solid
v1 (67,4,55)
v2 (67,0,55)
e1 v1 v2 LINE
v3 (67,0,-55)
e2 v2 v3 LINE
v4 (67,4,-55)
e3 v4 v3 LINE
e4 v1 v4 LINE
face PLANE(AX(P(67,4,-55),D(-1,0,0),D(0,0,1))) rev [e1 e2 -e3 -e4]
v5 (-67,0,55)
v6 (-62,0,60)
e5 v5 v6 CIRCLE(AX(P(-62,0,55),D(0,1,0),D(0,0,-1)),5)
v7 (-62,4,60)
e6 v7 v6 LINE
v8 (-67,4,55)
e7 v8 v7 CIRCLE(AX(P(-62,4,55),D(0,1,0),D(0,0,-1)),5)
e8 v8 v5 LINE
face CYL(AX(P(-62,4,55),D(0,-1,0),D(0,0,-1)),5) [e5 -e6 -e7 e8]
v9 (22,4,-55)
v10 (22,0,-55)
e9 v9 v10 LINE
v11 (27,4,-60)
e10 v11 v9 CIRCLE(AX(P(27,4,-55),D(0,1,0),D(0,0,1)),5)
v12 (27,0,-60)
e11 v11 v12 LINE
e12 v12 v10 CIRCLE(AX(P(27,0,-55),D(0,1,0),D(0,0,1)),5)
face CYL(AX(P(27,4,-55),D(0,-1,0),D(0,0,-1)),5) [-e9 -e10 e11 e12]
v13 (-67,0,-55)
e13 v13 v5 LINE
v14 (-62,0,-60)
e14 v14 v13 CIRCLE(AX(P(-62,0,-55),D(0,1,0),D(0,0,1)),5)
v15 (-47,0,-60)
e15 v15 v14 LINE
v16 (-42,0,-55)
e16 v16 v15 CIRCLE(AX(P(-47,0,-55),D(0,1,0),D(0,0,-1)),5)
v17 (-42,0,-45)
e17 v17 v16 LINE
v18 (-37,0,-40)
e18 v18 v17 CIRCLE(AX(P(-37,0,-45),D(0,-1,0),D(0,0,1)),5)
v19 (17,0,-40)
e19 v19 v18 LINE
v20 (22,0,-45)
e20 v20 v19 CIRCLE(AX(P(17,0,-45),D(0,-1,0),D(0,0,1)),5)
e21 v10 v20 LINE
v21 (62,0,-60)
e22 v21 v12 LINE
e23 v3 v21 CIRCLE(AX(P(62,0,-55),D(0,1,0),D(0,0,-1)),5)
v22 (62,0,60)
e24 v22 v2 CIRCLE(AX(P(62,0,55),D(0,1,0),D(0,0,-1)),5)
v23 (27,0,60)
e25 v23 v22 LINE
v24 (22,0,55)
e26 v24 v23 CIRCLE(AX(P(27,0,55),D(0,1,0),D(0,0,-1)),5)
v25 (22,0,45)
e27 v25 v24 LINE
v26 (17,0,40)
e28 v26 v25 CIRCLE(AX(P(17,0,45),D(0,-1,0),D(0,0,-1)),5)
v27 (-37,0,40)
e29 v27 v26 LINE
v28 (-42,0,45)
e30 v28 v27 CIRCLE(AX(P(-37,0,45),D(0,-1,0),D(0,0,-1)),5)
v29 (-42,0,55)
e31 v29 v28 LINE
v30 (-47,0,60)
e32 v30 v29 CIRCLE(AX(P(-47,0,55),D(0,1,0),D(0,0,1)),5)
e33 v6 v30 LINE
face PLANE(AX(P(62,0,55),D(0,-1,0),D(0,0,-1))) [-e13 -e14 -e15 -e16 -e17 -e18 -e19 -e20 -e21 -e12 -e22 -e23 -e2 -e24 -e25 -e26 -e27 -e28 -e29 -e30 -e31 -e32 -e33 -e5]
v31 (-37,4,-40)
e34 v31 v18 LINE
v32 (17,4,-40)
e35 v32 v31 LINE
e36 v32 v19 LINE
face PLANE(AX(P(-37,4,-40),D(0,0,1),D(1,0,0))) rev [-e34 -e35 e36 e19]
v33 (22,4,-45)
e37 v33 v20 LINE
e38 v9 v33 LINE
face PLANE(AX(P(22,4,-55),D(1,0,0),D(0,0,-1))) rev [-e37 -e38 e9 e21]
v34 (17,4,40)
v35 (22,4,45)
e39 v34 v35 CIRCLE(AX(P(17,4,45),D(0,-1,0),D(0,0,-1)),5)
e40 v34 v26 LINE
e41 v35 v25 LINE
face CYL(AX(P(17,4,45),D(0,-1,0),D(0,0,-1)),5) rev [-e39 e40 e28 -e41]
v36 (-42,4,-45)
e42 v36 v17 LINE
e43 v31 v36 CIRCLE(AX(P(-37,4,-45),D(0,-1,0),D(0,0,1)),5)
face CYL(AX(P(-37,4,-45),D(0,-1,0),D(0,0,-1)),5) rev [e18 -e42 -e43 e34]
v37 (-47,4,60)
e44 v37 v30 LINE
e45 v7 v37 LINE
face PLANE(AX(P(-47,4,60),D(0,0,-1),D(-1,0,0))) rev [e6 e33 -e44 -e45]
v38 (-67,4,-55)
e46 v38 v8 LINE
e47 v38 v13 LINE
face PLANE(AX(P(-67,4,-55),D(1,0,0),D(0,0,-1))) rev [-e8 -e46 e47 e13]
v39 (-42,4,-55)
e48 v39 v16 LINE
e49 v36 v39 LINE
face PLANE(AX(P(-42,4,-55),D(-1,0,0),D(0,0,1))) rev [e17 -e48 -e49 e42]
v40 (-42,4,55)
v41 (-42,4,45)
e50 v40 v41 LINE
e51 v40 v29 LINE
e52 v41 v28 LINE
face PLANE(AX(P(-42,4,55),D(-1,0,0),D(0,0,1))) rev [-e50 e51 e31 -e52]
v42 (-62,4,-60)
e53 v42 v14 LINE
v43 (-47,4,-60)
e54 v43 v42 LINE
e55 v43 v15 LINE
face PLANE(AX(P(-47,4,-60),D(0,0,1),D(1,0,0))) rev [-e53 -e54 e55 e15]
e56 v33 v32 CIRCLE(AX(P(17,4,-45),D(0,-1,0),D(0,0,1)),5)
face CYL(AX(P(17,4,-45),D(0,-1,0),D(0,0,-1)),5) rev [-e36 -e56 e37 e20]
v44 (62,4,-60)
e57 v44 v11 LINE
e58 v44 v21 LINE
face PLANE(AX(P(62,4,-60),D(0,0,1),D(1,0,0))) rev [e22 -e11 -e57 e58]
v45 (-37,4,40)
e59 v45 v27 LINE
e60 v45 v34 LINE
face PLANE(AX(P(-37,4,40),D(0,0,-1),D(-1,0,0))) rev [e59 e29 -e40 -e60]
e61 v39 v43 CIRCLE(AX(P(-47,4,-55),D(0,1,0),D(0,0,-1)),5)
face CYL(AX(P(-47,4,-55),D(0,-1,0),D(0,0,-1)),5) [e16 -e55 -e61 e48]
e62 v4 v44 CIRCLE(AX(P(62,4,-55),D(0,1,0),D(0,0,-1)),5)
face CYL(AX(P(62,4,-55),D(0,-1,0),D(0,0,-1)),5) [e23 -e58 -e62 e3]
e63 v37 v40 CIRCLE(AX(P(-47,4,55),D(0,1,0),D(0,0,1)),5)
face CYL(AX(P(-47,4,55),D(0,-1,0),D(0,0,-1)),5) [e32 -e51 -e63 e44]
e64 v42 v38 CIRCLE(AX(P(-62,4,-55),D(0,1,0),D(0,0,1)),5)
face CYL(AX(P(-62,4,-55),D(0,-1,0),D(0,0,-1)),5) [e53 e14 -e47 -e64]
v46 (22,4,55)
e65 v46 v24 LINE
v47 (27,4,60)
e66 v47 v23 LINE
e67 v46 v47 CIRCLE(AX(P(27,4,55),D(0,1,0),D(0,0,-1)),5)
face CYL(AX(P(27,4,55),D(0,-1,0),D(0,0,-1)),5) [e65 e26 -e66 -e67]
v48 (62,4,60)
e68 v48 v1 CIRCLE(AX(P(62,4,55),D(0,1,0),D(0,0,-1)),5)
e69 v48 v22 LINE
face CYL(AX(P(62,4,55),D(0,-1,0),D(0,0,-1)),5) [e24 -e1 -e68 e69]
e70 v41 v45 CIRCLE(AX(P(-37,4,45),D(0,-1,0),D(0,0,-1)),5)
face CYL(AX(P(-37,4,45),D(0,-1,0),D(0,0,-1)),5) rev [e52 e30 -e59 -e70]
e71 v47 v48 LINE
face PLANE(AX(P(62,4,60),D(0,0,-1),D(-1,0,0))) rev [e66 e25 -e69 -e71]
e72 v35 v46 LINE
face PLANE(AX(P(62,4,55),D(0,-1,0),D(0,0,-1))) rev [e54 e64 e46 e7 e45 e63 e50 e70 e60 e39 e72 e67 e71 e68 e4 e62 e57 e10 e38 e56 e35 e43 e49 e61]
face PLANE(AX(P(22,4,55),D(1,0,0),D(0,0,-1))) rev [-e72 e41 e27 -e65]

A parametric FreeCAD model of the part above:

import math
import FreeCAD as App
import Part
import Sketcher
from FreeCAD import Vector
Q = App.Units.Quantity

doc = App.newDocument("Part")
body = doc.addObject("PartDesign::Body", "Body")

sketch1 = body.newObject("Sketcher::SketchObject", "Sketch")
sketch1.AttachmentSupport = (doc.getObject("XZ_Plane"), [""])
sketch1.MapMode = "FlatFace"
sketch1.addGeometry([
    Part.LineSegment(Vector(-62, 60, 0), Vector(-47, 60, 0)),
    Part.ArcOfCircle(Part.Circle(Vector(-47, 55, 0), Vector(0, 0, 1), 5), math.radians(0), math.radians(90)),
    Part.LineSegment(Vector(-42, 55, 0), Vector(-42, 45, 0)),
    Part.ArcOfCircle(Part.Circle(Vector(-37, 45, 0), Vector(0, 0, 1), 5), math.radians(180), math.radians(270)),
    Part.LineSegment(Vector(-37, 40, 0), Vector(17, 40, 0)),
    Part.ArcOfCircle(Part.Circle(Vector(17, 45, 0), Vector(0, 0, 1), 5), math.radians(-90), math.radians(0)),
    Part.LineSegment(Vector(22, 45, 0), Vector(22, 55, 0)),
    Part.ArcOfCircle(Part.Circle(Vector(27, 55, 0), Vector(0, 0, 1), 5), math.radians(90), math.radians(180)),
    Part.LineSegment(Vector(27, 60, 0), Vector(62, 60, 0)),
    Part.ArcOfCircle(Part.Circle(Vector(62, 55, 0), Vector(0, 0, 1), 5), math.radians(0), math.radians(90)),
    Part.LineSegment(Vector(67, 55, 0), Vector(67, -55, 0)),
    Part.ArcOfCircle(Part.Circle(Vector(62, -55, 0), Vector(0, 0, 1), 5), math.radians(-90), math.radians(0)),
    Part.LineSegment(Vector(62, -60, 0), Vector(27, -60, 0)),
    Part.ArcOfCircle(Part.Circle(Vector(27, -55, 0), Vector(0, 0, 1), 5), math.radians(180), math.radians(270)),
    Part.LineSegment(Vector(22, -55, 0), Vector(22, -45, 0)),
    Part.ArcOfCircle(Part.Circle(Vector(17, -45, 0), Vector(0, 0, 1), 5), math.radians(0), math.radians(90)),
    Part.LineSegment(Vector(17, -40, 0), Vector(-37, -40, 0)),
    Part.ArcOfCircle(Part.Circle(Vector(-37, -45, 0), Vector(0, 0, 1), 5), math.radians(90), math.radians(180)),
    Part.LineSegment(Vector(-42, -45, 0), Vector(-42, -55, 0)),
    Part.ArcOfCircle(Part.Circle(Vector(-47, -55, 0), Vector(0, 0, 1), 5), math.radians(-90), math.radians(0)),
    Part.LineSegment(Vector(-47, -60, 0), Vector(-62, -60, 0)),
    Part.ArcOfCircle(Part.Circle(Vector(-62, -55, 0), Vector(0, 0, 1), 5), math.radians(180), math.radians(270)),
    Part.LineSegment(Vector(-67, -55, 0), Vector(-67, 55, 0)),
    Part.ArcOfCircle(Part.Circle(Vector(-62, 55, 0), Vector(0, 0, 1), 5), math.radians(90), math.radians(180)),
], False)
sketch1.addConstraint([
    Sketcher.Constraint("Tangent", 0, 2, 1, 2),
    Sketcher.Constraint("Tangent", 1, 1, 2, 1),
    Sketcher.Constraint("Tangent", 2, 2, 3, 1),
    Sketcher.Constraint("Tangent", 3, 2, 4, 1),
    Sketcher.Constraint("Tangent", 4, 2, 5, 1),
    Sketcher.Constraint("Tangent", 5, 2, 6, 1),
    Sketcher.Constraint("Tangent", 6, 2, 7, 2),
    Sketcher.Constraint("Tangent", 7, 1, 8, 1),
    Sketcher.Constraint("Tangent", 8, 2, 9, 2),
    Sketcher.Constraint("Tangent", 9, 1, 10, 1),
    Sketcher.Constraint("Tangent", 10, 2, 11, 2),
    Sketcher.Constraint("Tangent", 11, 1, 12, 1),
    Sketcher.Constraint("Tangent", 12, 2, 13, 2),
    Sketcher.Constraint("Tangent", 13, 1, 14, 1),
    Sketcher.Constraint("Tangent", 14, 2, 15, 1),
    Sketcher.Constraint("Tangent", 15, 2, 16, 1),
    Sketcher.Constraint("Tangent", 16, 2, 17, 1),
    Sketcher.Constraint("Tangent", 17, 2, 18, 1),
    Sketcher.Constraint("Tangent", 18, 2, 19, 2),
    Sketcher.Constraint("Tangent", 19, 1, 20, 1),
    Sketcher.Constraint("Tangent", 20, 2, 21, 2),
    Sketcher.Constraint("Tangent", 21, 1, 22, 1),
    Sketcher.Constraint("Tangent", 22, 2, 23, 2),
    Sketcher.Constraint("Tangent", 23, 1, 0, 1),
    Sketcher.Constraint("Horizontal", 0),
    Sketcher.Constraint("Vertical", 2),
    Sketcher.Constraint("Horizontal", 4),
    Sketcher.Constraint("Vertical", 6),
    Sketcher.Constraint("Horizontal", 8),
    Sketcher.Constraint("Vertical", 10),
    Sketcher.Constraint("Horizontal", 12),
    Sketcher.Constraint("Vertical", 14),
    Sketcher.Constraint("Horizontal", 16),
    Sketcher.Constraint("Vertical", 18),
    Sketcher.Constraint("Horizontal", 20),
    Sketcher.Constraint("Vertical", 22),
    Sketcher.Constraint("Equal", 1, 3),
    Sketcher.Constraint("Equal", 3, 5),
    Sketcher.Constraint("Equal", 5, 7),
    Sketcher.Constraint("Equal", 7, 9),
    Sketcher.Constraint("Equal", 9, 11),
    Sketcher.Constraint("Equal", 11, 13),
    Sketcher.Constraint("Equal", 13, 15),
    Sketcher.Constraint("Equal", 15, 17),
    Sketcher.Constraint("Equal", 17, 19),
    Sketcher.Constraint("Equal", 19, 21),
    Sketcher.Constraint("Equal", 21, 23),
    Sketcher.Constraint("Symmetric", 9, 3, 21, 3, -1, 1),
    Sketcher.Constraint("Symmetric", 7, 3, 13, 3, -1),
    Sketcher.Constraint("Symmetric", 3, 3, 17, 3, -1),
    Sketcher.Constraint("Horizontal", 1, 3, 7, 3),
    Sketcher.Constraint("Radius", 1, Q("5 mm")),
    Sketcher.Constraint("DistanceX", 0, 1, 0, 2, Q("15 mm")),
    Sketcher.Constraint("DistanceX", 4, 1, 4, 2, Q("54 mm")),
    Sketcher.Constraint("DistanceX", 8, 1, 8, 2, Q("35 mm")),
    Sketcher.Constraint("DistanceY", 2, 2, 2, 1, Q("10 mm")),
    Sketcher.Constraint("DistanceY", 10, 2, 10, 1, Q("110 mm")),
])
pad1 = body.newObject("PartDesign::Pad", "Pad")
pad1.Profile = sketch1
pad1.Length = 4
pad1.Reversed = True

doc.recompute()
